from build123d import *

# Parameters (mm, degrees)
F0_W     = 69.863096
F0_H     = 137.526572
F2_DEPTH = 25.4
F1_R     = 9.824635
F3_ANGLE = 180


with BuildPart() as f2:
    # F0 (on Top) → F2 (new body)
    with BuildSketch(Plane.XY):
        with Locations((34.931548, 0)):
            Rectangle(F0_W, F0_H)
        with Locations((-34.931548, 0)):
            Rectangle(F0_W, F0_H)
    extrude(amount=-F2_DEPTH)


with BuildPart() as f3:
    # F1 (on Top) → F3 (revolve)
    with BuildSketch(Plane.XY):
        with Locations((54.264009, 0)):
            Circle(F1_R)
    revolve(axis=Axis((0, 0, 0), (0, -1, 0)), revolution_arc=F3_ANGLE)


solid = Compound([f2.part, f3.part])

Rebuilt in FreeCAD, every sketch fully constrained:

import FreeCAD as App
import Part
import Sketcher

V = App.Vector
Q = App.Units.Quantity

doc = App.newDocument("Part")
body = doc.addObject("PartDesign::Body", "Body")

# Sketch on XY plane
sketch1 = body.newObject("Sketcher::SketchObject", "Sketch")
sketch1.AttachmentSupport = (doc.getObject("XY_Plane"), [""])
sketch1.MapMode = "FlatFace"
sketch1.addGeometry([
    Part.LineSegment(V(69.863096, -68.763286, 0), V(69.863096, 68.763286, 0)),
    Part.LineSegment(V(69.863096, 68.763286, 0), V(-69.863096, 68.763286, 0)),
    Part.LineSegment(V(-69.863096, 68.763286, 0), V(-69.863096, -68.763286, 0)),
    Part.LineSegment(V(-69.863096, -68.763286, 0), V(69.863096, -68.763286, 0)),
], False)
sketch1.addConstraint([
    Sketcher.Constraint("Coincident", 0, 2, 1, 1),
    Sketcher.Constraint("Coincident", 1, 2, 2, 1),
    Sketcher.Constraint("Coincident", 2, 2, 3, 1),
    Sketcher.Constraint("Coincident", 3, 2, 0, 1),
    Sketcher.Constraint("Vertical", 0),
    Sketcher.Constraint("Horizontal", 1),
    Sketcher.Constraint("Vertical", 2),
    Sketcher.Constraint("Horizontal", 3),
    Sketcher.Constraint("Symmetric", 0, 2, 2, 2, -1, 1),
    Sketcher.Constraint("DistanceX", 1, 2, 1, 1, Q("139.726192 mm")),
    Sketcher.Constraint("DistanceY", 0, 1, 0, 2, Q("137.526572 mm")),
])
pad1 = body.newObject("PartDesign::Pad", "Pad")
pad1.Profile = sketch1
pad1.Length = Q("1 in")
pad1.Reversed = True
body2 = doc.addObject("PartDesign::Body", "Body001")

# Sketch on XY plane
sketch2 = body2.newObject("Sketcher::SketchObject", "Sketch001")
sketch2.AttachmentSupport = (doc.getObject("XY_Plane001"), [""])
sketch2.MapMode = "FlatFace"
sketch2.addGeometry(Part.Circle(V(54.264009, 0, 0), V(0, 0, 1), 9.824635), False)
sketch2.addConstraint([
    Sketcher.Constraint("PointOnObject", 0, 3, -1),
    Sketcher.Constraint("Diameter", 0, Q("19.64927 mm")),
    Sketcher.Constraint("DistanceX", -1, 1, 0, 3, Q("54.264009 mm")),
])
revolution = body2.newObject("PartDesign::Revolution", "Revolution")
revolution.Profile = sketch2
revolution.ReferenceAxis = (sketch2, ["V_Axis"])
revolution.Angle = 180
revolution.Reversed = True

doc.recompute()
